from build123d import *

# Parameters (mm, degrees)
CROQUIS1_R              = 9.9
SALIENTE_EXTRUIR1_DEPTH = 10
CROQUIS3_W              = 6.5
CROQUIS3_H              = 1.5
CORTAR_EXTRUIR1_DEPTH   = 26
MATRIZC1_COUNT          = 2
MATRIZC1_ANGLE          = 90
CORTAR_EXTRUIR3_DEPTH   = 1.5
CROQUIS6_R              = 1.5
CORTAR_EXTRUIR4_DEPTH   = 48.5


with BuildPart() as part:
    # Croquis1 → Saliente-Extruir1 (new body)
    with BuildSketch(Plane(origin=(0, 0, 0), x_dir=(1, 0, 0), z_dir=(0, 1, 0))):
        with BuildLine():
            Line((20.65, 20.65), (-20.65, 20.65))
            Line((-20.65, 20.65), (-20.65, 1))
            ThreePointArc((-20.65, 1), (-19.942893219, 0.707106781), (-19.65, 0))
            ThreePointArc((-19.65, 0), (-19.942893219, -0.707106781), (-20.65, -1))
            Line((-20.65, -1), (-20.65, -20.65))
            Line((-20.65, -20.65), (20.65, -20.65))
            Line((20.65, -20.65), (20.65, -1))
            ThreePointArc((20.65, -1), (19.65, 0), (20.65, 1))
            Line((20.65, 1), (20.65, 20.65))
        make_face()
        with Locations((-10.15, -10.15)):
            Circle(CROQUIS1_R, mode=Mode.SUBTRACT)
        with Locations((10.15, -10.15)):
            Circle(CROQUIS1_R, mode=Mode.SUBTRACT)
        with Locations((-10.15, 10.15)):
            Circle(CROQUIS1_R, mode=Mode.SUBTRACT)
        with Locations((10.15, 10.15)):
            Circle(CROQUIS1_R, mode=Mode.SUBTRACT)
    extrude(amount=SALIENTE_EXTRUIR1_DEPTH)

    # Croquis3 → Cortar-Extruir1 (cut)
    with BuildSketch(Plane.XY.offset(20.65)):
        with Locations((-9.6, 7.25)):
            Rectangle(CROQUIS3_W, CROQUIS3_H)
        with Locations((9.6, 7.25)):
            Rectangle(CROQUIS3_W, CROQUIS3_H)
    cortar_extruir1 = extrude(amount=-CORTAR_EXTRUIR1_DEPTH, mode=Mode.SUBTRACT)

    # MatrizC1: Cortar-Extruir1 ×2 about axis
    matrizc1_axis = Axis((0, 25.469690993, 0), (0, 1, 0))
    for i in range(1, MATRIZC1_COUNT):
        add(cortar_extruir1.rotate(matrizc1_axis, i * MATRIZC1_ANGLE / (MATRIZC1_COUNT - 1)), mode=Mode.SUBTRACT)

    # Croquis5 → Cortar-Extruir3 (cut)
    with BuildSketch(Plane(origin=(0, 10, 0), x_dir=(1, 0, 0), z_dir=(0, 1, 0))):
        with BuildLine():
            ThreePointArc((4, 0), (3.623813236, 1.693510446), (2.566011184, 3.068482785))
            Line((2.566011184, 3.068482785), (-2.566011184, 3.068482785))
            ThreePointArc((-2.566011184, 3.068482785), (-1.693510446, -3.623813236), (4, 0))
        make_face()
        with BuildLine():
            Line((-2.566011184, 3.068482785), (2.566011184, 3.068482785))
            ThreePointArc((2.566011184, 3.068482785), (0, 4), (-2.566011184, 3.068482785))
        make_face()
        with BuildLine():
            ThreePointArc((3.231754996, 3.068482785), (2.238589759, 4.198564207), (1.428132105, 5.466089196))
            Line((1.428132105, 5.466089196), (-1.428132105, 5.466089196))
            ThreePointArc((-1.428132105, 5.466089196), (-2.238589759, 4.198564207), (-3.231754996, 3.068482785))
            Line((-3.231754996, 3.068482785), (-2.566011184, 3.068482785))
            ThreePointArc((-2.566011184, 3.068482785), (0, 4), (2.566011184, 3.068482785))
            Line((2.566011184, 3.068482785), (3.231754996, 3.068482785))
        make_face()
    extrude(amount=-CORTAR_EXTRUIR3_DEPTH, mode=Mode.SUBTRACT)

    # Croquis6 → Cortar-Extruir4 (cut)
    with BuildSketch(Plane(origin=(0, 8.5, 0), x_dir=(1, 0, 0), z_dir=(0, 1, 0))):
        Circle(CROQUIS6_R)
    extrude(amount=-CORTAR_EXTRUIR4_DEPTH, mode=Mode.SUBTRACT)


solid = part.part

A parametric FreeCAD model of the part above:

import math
import FreeCAD as App
import Part
import Sketcher
Q = App.Units.Quantity

doc = App.newDocument("Part")
body = doc.addObject("PartDesign::Body", "Body")

# Sketch on XZ plane
sketch1 = body.newObject("Sketcher::SketchObject", "Sketch")
sketch1.AttachmentSupport = (doc.getObject("XZ_Plane"), [""])
sketch1.MapMode = "FlatFace"
sketch1.addGeometry(Part.LineSegment(App.Vector(20.65, -20.65, 0), App.Vector(-20.65, -20.65, 0)), False)
sketch1.addGeometry(Part.LineSegment(App.Vector(-20.65, -20.65, 0), App.Vector(-20.65, -1, 0)), False)
sketch1.addGeometry(Part.ArcOfCircle(Part.Circle(App.Vector(-20.65, 0, 0), App.Vector(0, 0, 1), 1), math.radians(-90), math.radians(0)), False)
sketch1.addGeometry(Part.ArcOfCircle(Part.Circle(App.Vector(-20.65, 0, 0), App.Vector(0, 0, 1), 1), math.radians(0), math.radians(90)), False)
sketch1.addGeometry(Part.LineSegment(App.Vector(-20.65, 1, 0), App.Vector(-20.65, 20.65, 0)), False)
sketch1.addGeometry(Part.LineSegment(App.Vector(-20.65, 20.65, 0), App.Vector(20.65, 20.65, 0)), False)
sketch1.addGeometry(Part.LineSegment(App.Vector(20.65, 20.65, 0), App.Vector(20.65, 1, 0)), False)
sketch1.addGeometry(Part.ArcOfCircle(Part.Circle(App.Vector(20.65, 0, 0), App.Vector(0, 0, 1), 1), math.radians(90), math.radians(270)), False)
sketch1.addGeometry(Part.LineSegment(App.Vector(20.65, -1, 0), App.Vector(20.65, -20.65, 0)), False)
sketch1.addGeometry(Part.Circle(App.Vector(-10.15, 10.15, 0), App.Vector(0, 0, 1), 9.9), False)
sketch1.addGeometry(Part.Circle(App.Vector(10.15, 10.15, 0), App.Vector(0, 0, 1), 9.9), False)
sketch1.addGeometry(Part.Circle(App.Vector(-10.15, -10.15, 0), App.Vector(0, 0, 1), 9.9), False)
sketch1.addGeometry(Part.Circle(App.Vector(10.15, -10.15, 0), App.Vector(0, 0, 1), 9.9), False)
sketch1.addConstraint(Sketcher.Constraint("Coincident", 0, 2, 1, 1))
sketch1.addConstraint(Sketcher.Constraint("Coincident", 1, 2, 2, 1))
sketch1.addConstraint(Sketcher.Constraint("Tangent", 2, 2, 3, 1))
sketch1.addConstraint(Sketcher.Constraint("Coincident", 3, 2, 4, 1))
sketch1.addConstraint(Sketcher.Constraint("Coincident", 4, 2, 5, 1))
sketch1.addConstraint(Sketcher.Constraint("Coincident", 5, 2, 6, 1))
sketch1.addConstraint(Sketcher.Constraint("Coincident", 6, 2, 7, 1))
sketch1.addConstraint(Sketcher.Constraint("Coincident", 7, 2, 8, 1))
sketch1.addConstraint(Sketcher.Constraint("Coincident", 8, 2, 0, 1))
sketch1.addConstraint(Sketcher.Constraint("Horizontal", 0))
sketch1.addConstraint(Sketcher.Constraint("Vertical", 1))
sketch1.addConstraint(Sketcher.Constraint("Vertical", 4))
sketch1.addConstraint(Sketcher.Constraint("Horizontal", 5))
sketch1.addConstraint(Sketcher.Constraint("Vertical", 6))
sketch1.addConstraint(Sketcher.Constraint("Vertical", 8))
sketch1.addConstraint(Sketcher.Constraint("Equal", 2, 3))
sketch1.addConstraint(Sketcher.Constraint("Equal", 3, 7))
sketch1.addConstraint(Sketcher.Constraint("Equal", 9, 10))
sketch1.addConstraint(Sketcher.Constraint("Equal", 10, 11))
sketch1.addConstraint(Sketcher.Constraint("Equal", 11, 12))
sketch1.addConstraint(Sketcher.Constraint("Symmetric", 2, 3, 7, 3, -1, 1))
sketch1.addConstraint(Sketcher.Constraint("Symmetric", 10, 3, 11, 3, -1, 1))
sketch1.addConstraint(Sketcher.Constraint("Symmetric", 9, 3, 12, 3, -1, 1))
sketch1.addConstraint(Sketcher.Constraint("Symmetric", 0, 2, 5, 2, -1, 1))
sketch1.addConstraint(Sketcher.Constraint("Symmetric", 9, 3, 10, 3, -2))
sketch1.addConstraint(Sketcher.Constraint("Symmetric", 3, 2, 6, 2, -2))
sketch1.addConstraint(Sketcher.Constraint("PointOnObject", 2, 2, -1))
sketch1.addConstraint(Sketcher.Constraint("Vertical", 3, 3, 0, 2))
sketch1.addConstraint(Sketcher.Constraint("Vertical", 6, 2, 7, 2))
sketch1.addConstraint(Sketcher.Constraint("Radius", 2, Q("1 mm")))
sketch1.addConstraint(Sketcher.Constraint("Diameter", 9, Q("19.8 mm")))
sketch1.addConstraint(Sketcher.Constraint("DistanceX", 0, 2, 0, 1, Q("41.3 mm")))
sketch1.addConstraint(Sketcher.Constraint("DistanceY", 1, 1, 1, 2, Q("19.65 mm")))
sketch1.addConstraint(Sketcher.Constraint("DistanceX", 2, 3, 9, 3, Q("10.5 mm")))
sketch1.addConstraint(Sketcher.Constraint("DistanceY", 11, 3, 9, 3, Q("20.3 mm")))
pad1 = body.newObject("PartDesign::Pad", "Pad")
pad1.Profile = sketch1
pad1.Length = 10
pad1.Reversed = True

# Sketch on XY plane
sketch2 = body.newObject("Sketcher::SketchObject", "Sketch001")
sketch2.AttachmentSupport = (doc.getObject("XY_Plane"), [""])
sketch2.MapMode = "FlatFace"
sketch2.AttachmentOffset = App.Placement(App.Vector(0, 0, 20.65), App.Rotation())
sketch2.addGeometry(Part.LineSegment(App.Vector(-12.85, 8, 0), App.Vector(-12.85, 6.5, 0)), False)
sketch2.addGeometry(Part.LineSegment(App.Vector(-12.85, 6.5, 0), App.Vector(-6.35, 6.5, 0)), False)
sketch2.addGeometry(Part.LineSegment(App.Vector(-6.35, 6.5, 0), App.Vector(-6.35, 8, 0)), False)
sketch2.addGeometry(Part.LineSegment(App.Vector(-6.35, 8, 0), App.Vector(-12.85, 8, 0)), False)
sketch2.addGeometry(Part.LineSegment(App.Vector(6.35, 8, 0), App.Vector(6.35, 6.5, 0)), False)
sketch2.addGeometry(Part.LineSegment(App.Vector(6.35, 6.5, 0), App.Vector(12.85, 6.5, 0)), False)
sketch2.addGeometry(Part.LineSegment(App.Vector(12.85, 6.5, 0), App.Vector(12.85, 8, 0)), False)
sketch2.addGeometry(Part.LineSegment(App.Vector(12.85, 8, 0), App.Vector(6.35, 8, 0)), False)
sketch2.addConstraint(Sketcher.Constraint("Coincident", 0, 2, 1, 1))
sketch2.addConstraint(Sketcher.Constraint("Coincident", 1, 2, 2, 1))
sketch2.addConstraint(Sketcher.Constraint("Coincident", 2, 2, 3, 1))
sketch2.addConstraint(Sketcher.Constraint("Coincident", 3, 2, 0, 1))
sketch2.addConstraint(Sketcher.Constraint("Coincident", 4, 2, 5, 1))
sketch2.addConstraint(Sketcher.Constraint("Coincident", 5, 2, 6, 1))
sketch2.addConstraint(Sketcher.Constraint("Coincident", 6, 2, 7, 1))
sketch2.addConstraint(Sketcher.Constraint("Coincident", 7, 2, 4, 1))
sketch2.addConstraint(Sketcher.Constraint("Vertical", 0))
sketch2.addConstraint(Sketcher.Constraint("Horizontal", 1))
sketch2.addConstraint(Sketcher.Constraint("Vertical", 2))
sketch2.addConstraint(Sketcher.Constraint("Horizontal", 3))
sketch2.addConstraint(Sketcher.Constraint("Vertical", 4))
sketch2.addConstraint(Sketcher.Constraint("Horizontal", 5))
sketch2.addConstraint(Sketcher.Constraint("Vertical", 6))
sketch2.addConstraint(Sketcher.Constraint("Horizontal", 7))
sketch2.addConstraint(Sketcher.Constraint("Symmetric", 1, 2, 4, 2, -2))
sketch2.addConstraint(Sketcher.Constraint("Symmetric", 3, 2, 6, 2, -2))
sketch2.addConstraint(Sketcher.Constraint("DistanceX", 1, 1, 1, 2, Q("6.5 mm")))
sketch2.addConstraint(Sketcher.Constraint("DistanceY", 0, 2, 0, 1, Q("1.5 mm")))
sketch2.addConstraint(Sketcher.Constraint("DistanceY", -1, 1, 2, 2, Q("8 mm")))
sketch2.addConstraint(Sketcher.Constraint("DistanceX", 1, 2, 4, 2, Q("12.7 mm")))
pocket1 = body.newObject("PartDesign::Pocket", "Pocket")
pocket1.Profile = sketch2
pocket1.Length = 26
doc.recompute()

polarpattern = body.newObject("PartDesign::PolarPattern", "PolarPattern")
polarpattern.Originals = [pocket1]
polarpattern.Axis = (doc.getObject("Y_Axis"), [""])
polarpattern.Angle = 90
polarpattern.Occurrences = 2
body.Tip = polarpattern

# Sketch on XZ plane
sketch3 = body.newObject("Sketcher::SketchObject", "Sketch002")
sketch3.AttachmentSupport = (doc.getObject("XZ_Plane"), [""])
sketch3.MapMode = "FlatFace"
sketch3.AttachmentOffset = App.Placement(App.Vector(0, 0, -10), App.Rotation())
sketch3.addGeometry(Part.ArcOfCircle(Part.Circle(App.Vector(0, 0, 0), App.Vector(0, 0, 1), 4), math.radians(-50.096029), math.radians(0)), False)
sketch3.addGeometry(Part.LineSegment(App.Vector(2.566011, -3.068483, 0), App.Vector(3.231755, -3.068483, 0)), False)
sketch3.addGeometry(Part.ArcOfCircle(Part.Circle(App.Vector(10.15, -10.15, 0), App.Vector(0, 0, 1), 9.9), math.radians(134.331818), math.radians(151.762836)), False)
sketch3.addGeometry(Part.LineSegment(App.Vector(1.428132, -5.466089, 0), App.Vector(-1.428132, -5.466089, 0)), False)
sketch3.addGeometry(Part.ArcOfCircle(Part.Circle(App.Vector(-10.15, -10.15, 0), App.Vector(0, 0, 1), 9.9), math.radians(28.237164), math.radians(45.668182)), False)
sketch3.addGeometry(Part.LineSegment(App.Vector(-3.231755, -3.068483, 0), App.Vector(-2.566011, -3.068483, 0)), False)
sketch3.addGeometry(Part.ArcOfCircle(Part.Circle(App.Vector(0, 0, 0), App.Vector(0, 0, 1), 4), math.radians(0), math.radians(230.096029)), False)
sketch3.addConstraint(Sketcher.Constraint("Coincident", 0, 1, 1, 1))
sketch3.addConstraint(Sketcher.Constraint("Coincident", 1, 2, 2, 1))
sketch3.addConstraint(Sketcher.Constraint("Coincident", 2, 2, 3, 1))
sketch3.addConstraint(Sketcher.Constraint("Coincident", 3, 2, 4, 1))
sketch3.addConstraint(Sketcher.Constraint("Coincident", 4, 2, 5, 1))
sketch3.addConstraint(Sketcher.Constraint("Coincident", 5, 2, 6, 2))
sketch3.addConstraint(Sketcher.Constraint("Tangent", 6, 1, 0, 2))
sketch3.addConstraint(Sketcher.Constraint("Horizontal", 1))
sketch3.addConstraint(Sketcher.Constraint("Horizontal", 3))
sketch3.addConstraint(Sketcher.Constraint("Horizontal", 5))
sketch3.addConstraint(Sketcher.Constraint("Coincident", 0, 3, -1, 1))
sketch3.addConstraint(Sketcher.Constraint("Equal", 2, 4))
sketch3.addConstraint(Sketcher.Constraint("Equal", 0, 6))
sketch3.addConstraint(Sketcher.Constraint("Symmetric", 2, 3, 4, 3, -2))
sketch3.addConstraint(Sketcher.Constraint("PointOnObject", 6, 1, -1))
sketch3.addConstraint(Sketcher.Constraint("Horizontal", 1, 2, 4, 2))
sketch3.addConstraint(Sketcher.Constraint("Radius", 0, Q("4 mm")))
sketch3.addConstraint(Sketcher.Constraint("Radius", 2, Q("9.9 mm")))
sketch3.addConstraint(Sketcher.Constraint("DistanceX", 4, 3, 2, 3, Q("20.3 mm")))
sketch3.addConstraint(Sketcher.Constraint("DistanceY", 2, 3, -1, 1, Q("10.15 mm")))
sketch3.addConstraint(Sketcher.Constraint("DistanceX", 1, 1, 1, 2, Q("0.665744 mm")))
sketch3.addConstraint(Sketcher.Constraint("DistanceX", 3, 2, 3, 1, Q("2.856264 mm")))
pocket2 = body.newObject("PartDesign::Pocket", "Pocket001")
pocket2.Profile = sketch3
pocket2.Length = 1.5
pocket2.Reversed = True

# Sketch on XZ plane
sketch4 = body.newObject("Sketcher::SketchObject", "Sketch003")
sketch4.AttachmentSupport = (doc.getObject("XZ_Plane"), [""])
sketch4.MapMode = "FlatFace"
sketch4.AttachmentOffset = App.Placement(App.Vector(0, 0, -8.5), App.Rotation())
sketch4.addGeometry(Part.Circle(App.Vector(0, 0, 0), App.Vector(0, 0, 1), 1.5), False)
sketch4.addConstraint(Sketcher.Constraint("Coincident", 0, 3, -1, 1))
sketch4.addConstraint(Sketcher.Constraint("Diameter", 0, Q("3 mm")))
pocket3 = body.newObject("PartDesign::Pocket", "Pocket002")
pocket3.Profile = sketch4
pocket3.Length = 48.5
pocket3.Reversed = True

doc.recompute()
